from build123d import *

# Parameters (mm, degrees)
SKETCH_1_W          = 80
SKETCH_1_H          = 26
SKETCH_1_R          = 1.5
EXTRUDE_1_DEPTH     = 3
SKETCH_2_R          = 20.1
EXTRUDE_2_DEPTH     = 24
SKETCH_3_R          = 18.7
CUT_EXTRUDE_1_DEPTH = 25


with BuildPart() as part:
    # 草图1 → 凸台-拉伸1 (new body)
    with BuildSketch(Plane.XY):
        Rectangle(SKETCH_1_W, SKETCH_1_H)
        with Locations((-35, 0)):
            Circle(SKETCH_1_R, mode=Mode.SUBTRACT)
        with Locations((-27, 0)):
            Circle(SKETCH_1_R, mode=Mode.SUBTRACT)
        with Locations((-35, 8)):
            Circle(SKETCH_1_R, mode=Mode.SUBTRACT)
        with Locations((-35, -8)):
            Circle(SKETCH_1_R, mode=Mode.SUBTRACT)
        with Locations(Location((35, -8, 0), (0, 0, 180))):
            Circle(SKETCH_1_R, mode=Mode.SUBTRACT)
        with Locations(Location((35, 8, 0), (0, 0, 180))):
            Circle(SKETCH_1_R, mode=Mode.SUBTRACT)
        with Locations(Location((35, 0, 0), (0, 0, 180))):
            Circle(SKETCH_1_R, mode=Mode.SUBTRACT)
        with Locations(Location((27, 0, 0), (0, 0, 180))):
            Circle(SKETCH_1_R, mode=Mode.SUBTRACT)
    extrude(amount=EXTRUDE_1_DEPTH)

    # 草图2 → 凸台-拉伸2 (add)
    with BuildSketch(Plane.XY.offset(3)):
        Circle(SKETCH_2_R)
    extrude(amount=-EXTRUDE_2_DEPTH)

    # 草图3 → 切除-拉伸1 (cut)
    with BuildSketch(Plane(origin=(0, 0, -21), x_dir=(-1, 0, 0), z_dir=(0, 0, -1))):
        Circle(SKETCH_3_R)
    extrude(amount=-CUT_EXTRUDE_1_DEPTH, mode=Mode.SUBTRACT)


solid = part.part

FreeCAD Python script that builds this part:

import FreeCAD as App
import Part
import Sketcher

doc = App.newDocument("Part")
body = doc.addObject("PartDesign::Body", "Body")

# Sketch on XY plane
sketch1 = body.newObject("Sketcher::SketchObject", "Sketch")
sketch1.AttachmentSupport = (doc.getObject("XY_Plane"), [""])
sketch1.MapMode = "FlatFace"
sketch1.addGeometry(Part.LineSegment(App.Vector(-40, 13, 0), App.Vector(-40, -13, 0)), False)
sketch1.addGeometry(Part.LineSegment(App.Vector(-40, -13, 0), App.Vector(40, -13, 0)), False)
sketch1.addGeometry(Part.LineSegment(App.Vector(40, -13, 0), App.Vector(40, 13, 0)), False)
sketch1.addGeometry(Part.LineSegment(App.Vector(40, 13, 0), App.Vector(-40, 13, 0)), False)
sketch1.addGeometry(Part.Circle(App.Vector(-35, -8, 0), App.Vector(0, 0, 1), 1.5), False)
sketch1.addGeometry(Part.Circle(App.Vector(35, -8, 0), App.Vector(0, 0, 1), 1.5), False)
sketch1.addGeometry(Part.Circle(App.Vector(-35, 0, 0), App.Vector(0, 0, 1), 1.5), False)
sketch1.addGeometry(Part.Circle(App.Vector(-27, 0, 0), App.Vector(0, 0, 1), 1.5), False)
sketch1.addGeometry(Part.Circle(App.Vector(-35, 8, 0), App.Vector(0, 0, 1), 1.5), False)
sketch1.addGeometry(Part.Circle(App.Vector(27, 0, 0), App.Vector(0, 0, 1), 1.5), False)
sketch1.addGeometry(Part.Circle(App.Vector(35, 0, 0), App.Vector(0, 0, 1), 1.5), False)
sketch1.addGeometry(Part.Circle(App.Vector(35, 8, 0), App.Vector(0, 0, 1), 1.5), False)
sketch1.addConstraint(Sketcher.Constraint("Coincident", 0, 2, 1, 1))
sketch1.addConstraint(Sketcher.Constraint("Coincident", 1, 2, 2, 1))
sketch1.addConstraint(Sketcher.Constraint("Coincident", 2, 2, 3, 1))
sketch1.addConstraint(Sketcher.Constraint("Coincident", 3, 2, 0, 1))
sketch1.addConstraint(Sketcher.Constraint("Vertical", 0))
sketch1.addConstraint(Sketcher.Constraint("Horizontal", 1))
sketch1.addConstraint(Sketcher.Constraint("Vertical", 2))
sketch1.addConstraint(Sketcher.Constraint("Horizontal", 3))
sketch1.addConstraint(Sketcher.Constraint("Equal", 4, 5))
sketch1.addConstraint(Sketcher.Constraint("Equal", 5, 6))
sketch1.addConstraint(Sketcher.Constraint("Equal", 6, 7))
sketch1.addConstraint(Sketcher.Constraint("Equal", 7, 8))
sketch1.addConstraint(Sketcher.Constraint("Equal", 8, 9))
sketch1.addConstraint(Sketcher.Constraint("Equal", 9, 10))
sketch1.addConstraint(Sketcher.Constraint("Equal", 10, 11))
sketch1.addConstraint(Sketcher.Constraint("Symmetric", 5, 3, 8, 3, -1, 1))
sketch1.addConstraint(Sketcher.Constraint("Symmetric", 7, 3, 9, 3, -1, 1))
sketch1.addConstraint(Sketcher.Constraint("Symmetric", 6, 3, 10, 3, -1, 1))
sketch1.addConstraint(Sketcher.Constraint("Symmetric", 4, 3, 11, 3, -1, 1))
sketch1.addConstraint(Sketcher.Constraint("Symmetric", 0, 2, 2, 2, -1, 1))
sketch1.addConstraint(Sketcher.Constraint("Symmetric", 4, 3, 5, 3, -2))
sketch1.addConstraint(Sketcher.Constraint("PointOnObject", 6, 3, -1))
sketch1.addConstraint(Sketcher.Constraint("PointOnObject", 7, 3, -1))
sketch1.addConstraint(Sketcher.Constraint("Vertical", 4, 3, 6, 3))
sketch1.addConstraint(Sketcher.Constraint("Diameter", 4, 3.0))
sketch1.addConstraint(Sketcher.Constraint("DistanceX", 1, 1, 1, 2, 80.0))
sketch1.addConstraint(Sketcher.Constraint("DistanceY", 0, 2, 0, 1, 26.0))
sketch1.addConstraint(Sketcher.Constraint("DistanceX", 4, 3, -1, 1, 35.0))
sketch1.addConstraint(Sketcher.Constraint("DistanceY", 4, 3, -1, 1, 8.0))
sketch1.addConstraint(Sketcher.Constraint("DistanceX", 7, 3, -1, 1, 27.0))
pad1 = body.newObject("PartDesign::Pad", "Pad")
pad1.Profile = sketch1
pad1.Length = 3

# Sketch on XY plane
sketch2 = body.newObject("Sketcher::SketchObject", "Sketch001")
sketch2.AttachmentSupport = (doc.getObject("XY_Plane"), [""])
sketch2.MapMode = "FlatFace"
sketch2.AttachmentOffset = App.Placement(App.Vector(0, 0, 3), App.Rotation())
sketch2.addGeometry(Part.Circle(App.Vector(0, 0, 0), App.Vector(0, 0, 1), 20.1), False)
sketch2.addConstraint(Sketcher.Constraint("Coincident", 0, 3, -1, 1))
sketch2.addConstraint(Sketcher.Constraint("Diameter", 0, 40.2))
pad2 = body.newObject("PartDesign::Pad", "Pad001")
pad2.Profile = sketch2
pad2.Length = 24
pad2.Reversed = True

# Sketch on XY plane
sketch3 = body.newObject("Sketcher::SketchObject", "Sketch002")
sketch3.AttachmentSupport = (doc.getObject("XY_Plane"), [""])
sketch3.MapMode = "FlatFace"
sketch3.AttachmentOffset = App.Placement(App.Vector(0, 0, -21), App.Rotation())
sketch3.addGeometry(Part.Circle(App.Vector(0, 0, 0), App.Vector(0, 0, 1), 18.7), False)
sketch3.addConstraint(Sketcher.Constraint("Coincident", 0, 3, -1, 1))
sketch3.addConstraint(Sketcher.Constraint("Diameter", 0, 37.4))
pocket1 = body.newObject("PartDesign::Pocket", "Pocket")
pocket1.Profile = sketch3
pocket1.Length = 25
pocket1.Reversed = True

doc.recompute()
